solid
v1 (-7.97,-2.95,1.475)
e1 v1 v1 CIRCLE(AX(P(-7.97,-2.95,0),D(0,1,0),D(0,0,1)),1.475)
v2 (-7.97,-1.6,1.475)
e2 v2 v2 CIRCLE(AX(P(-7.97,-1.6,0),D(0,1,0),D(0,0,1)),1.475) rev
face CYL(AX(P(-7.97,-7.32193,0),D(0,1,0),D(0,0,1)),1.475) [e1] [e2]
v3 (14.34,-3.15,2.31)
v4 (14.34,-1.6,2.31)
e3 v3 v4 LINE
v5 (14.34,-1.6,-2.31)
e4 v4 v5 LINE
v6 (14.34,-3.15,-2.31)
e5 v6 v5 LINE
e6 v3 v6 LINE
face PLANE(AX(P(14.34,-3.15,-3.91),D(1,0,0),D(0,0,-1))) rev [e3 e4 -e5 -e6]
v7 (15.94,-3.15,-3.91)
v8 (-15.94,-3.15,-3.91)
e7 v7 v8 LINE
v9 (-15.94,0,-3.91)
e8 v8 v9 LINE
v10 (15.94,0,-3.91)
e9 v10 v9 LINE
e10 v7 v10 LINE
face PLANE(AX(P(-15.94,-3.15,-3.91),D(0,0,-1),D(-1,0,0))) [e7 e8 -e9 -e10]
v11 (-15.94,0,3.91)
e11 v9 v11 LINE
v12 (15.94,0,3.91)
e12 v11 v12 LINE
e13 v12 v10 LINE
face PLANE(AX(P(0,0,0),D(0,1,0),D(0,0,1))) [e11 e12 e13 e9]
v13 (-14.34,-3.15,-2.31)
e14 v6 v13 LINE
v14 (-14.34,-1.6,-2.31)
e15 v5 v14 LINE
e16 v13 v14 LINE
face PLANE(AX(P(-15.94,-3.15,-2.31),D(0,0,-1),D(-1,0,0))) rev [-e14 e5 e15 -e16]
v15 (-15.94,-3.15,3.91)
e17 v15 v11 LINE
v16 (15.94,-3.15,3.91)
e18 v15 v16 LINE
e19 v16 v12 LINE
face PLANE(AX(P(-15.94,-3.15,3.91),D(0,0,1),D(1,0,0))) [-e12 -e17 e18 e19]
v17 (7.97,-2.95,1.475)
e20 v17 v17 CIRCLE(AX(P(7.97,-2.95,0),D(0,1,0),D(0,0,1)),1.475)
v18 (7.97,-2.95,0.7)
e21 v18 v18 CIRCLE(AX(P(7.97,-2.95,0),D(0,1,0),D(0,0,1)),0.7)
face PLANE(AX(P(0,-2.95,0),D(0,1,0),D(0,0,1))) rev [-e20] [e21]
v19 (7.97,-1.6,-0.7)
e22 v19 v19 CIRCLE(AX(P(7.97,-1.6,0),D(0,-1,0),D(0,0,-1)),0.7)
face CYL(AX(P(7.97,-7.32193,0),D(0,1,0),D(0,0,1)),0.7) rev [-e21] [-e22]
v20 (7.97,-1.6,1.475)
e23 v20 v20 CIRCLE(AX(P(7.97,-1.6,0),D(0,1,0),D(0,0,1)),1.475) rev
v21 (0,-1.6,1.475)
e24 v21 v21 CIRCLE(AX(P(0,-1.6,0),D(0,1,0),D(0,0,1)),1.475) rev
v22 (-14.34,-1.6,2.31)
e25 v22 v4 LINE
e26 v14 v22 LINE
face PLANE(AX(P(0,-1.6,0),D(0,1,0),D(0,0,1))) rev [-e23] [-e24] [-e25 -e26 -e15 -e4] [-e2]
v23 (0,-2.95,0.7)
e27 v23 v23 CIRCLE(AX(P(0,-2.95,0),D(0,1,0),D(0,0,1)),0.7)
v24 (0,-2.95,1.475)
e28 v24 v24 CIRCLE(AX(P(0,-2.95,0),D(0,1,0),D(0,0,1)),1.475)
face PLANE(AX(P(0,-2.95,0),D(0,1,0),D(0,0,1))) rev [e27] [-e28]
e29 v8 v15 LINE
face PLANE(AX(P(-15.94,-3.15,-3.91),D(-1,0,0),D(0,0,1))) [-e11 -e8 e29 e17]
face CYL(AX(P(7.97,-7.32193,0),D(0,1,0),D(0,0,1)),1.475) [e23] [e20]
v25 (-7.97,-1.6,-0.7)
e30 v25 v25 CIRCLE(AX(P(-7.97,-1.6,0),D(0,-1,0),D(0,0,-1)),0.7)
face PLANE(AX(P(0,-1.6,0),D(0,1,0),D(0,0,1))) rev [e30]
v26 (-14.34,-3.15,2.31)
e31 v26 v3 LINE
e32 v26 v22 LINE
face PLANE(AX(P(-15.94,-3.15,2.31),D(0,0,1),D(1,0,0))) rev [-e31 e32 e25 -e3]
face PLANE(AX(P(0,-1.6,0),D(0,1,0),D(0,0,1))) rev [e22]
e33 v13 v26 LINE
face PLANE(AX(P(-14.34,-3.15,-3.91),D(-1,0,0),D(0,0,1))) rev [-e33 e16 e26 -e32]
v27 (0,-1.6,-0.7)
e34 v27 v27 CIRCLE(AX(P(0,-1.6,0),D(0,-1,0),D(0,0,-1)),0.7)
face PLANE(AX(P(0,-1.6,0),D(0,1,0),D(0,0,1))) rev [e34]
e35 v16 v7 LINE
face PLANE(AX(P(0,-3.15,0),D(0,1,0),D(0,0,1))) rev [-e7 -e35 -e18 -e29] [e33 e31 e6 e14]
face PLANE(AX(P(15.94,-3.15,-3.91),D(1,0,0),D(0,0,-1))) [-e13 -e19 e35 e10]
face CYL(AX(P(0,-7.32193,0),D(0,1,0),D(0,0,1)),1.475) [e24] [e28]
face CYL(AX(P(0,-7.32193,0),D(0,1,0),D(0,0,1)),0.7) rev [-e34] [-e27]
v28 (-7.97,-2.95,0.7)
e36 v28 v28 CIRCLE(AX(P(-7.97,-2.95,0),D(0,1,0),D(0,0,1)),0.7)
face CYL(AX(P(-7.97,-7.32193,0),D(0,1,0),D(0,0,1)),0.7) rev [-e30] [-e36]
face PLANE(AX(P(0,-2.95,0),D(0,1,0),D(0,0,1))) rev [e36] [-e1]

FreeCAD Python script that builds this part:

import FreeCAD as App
import Part
import Sketcher
from FreeCAD import Vector


def faces_at(feature, points):
    """Names of the faces that lie closest to the given points."""
    faces = feature.Shape.Faces
    near = lambda p: min(range(len(faces)), key=lambda i: faces[i].distToShape(Part.Vertex(*p))[0])
    return sorted({f"Face{near(p) + 1}" for p in points})


def add_polygon(sketch, points):
    """Adds a closed chain of lines whose ends are joined by coincident constraints."""
    first, n = sketch.GeometryCount, len(points)
    for a, b in zip(points, points[1:] + points[:1]):
        sketch.addGeometry(Part.LineSegment(App.Vector(*a, 0), App.Vector(*b, 0)), False)
    for i in range(n):
        sketch.addConstraint(Sketcher.Constraint("Coincident", first + i, 2, first + (i + 1) % n, 1))

doc = App.newDocument("Part")
params = doc.addObject("Spreadsheet::Sheet", "Params")
for row, (alias, value) in enumerate([
    ("sketch1_width", "31.88 mm"),
    ("sketch1_height", "7.82 mm"),
    ("pad1_length", "3.15 mm"),
    ("thickness_wall", "1.6 mm"),
    ("sketch2_diameter", "1.4 mm"),
    ("sketch2_diameter2", "2.95 mm"),
    ("pad2_length", "1.35 mm"),
], start=1):
    params.set(f"A{row}", alias)
    params.set(f"B{row}", "=" + value)
    params.setAlias(f"B{row}", alias)

body = doc.addObject("PartDesign::Body", "Body")

# Sketch on XZ plane
sketch1 = body.newObject("Sketcher::SketchObject", "Sketch")
sketch1.AttachmentSupport = (doc.getObject("XZ_Plane"), [""])
sketch1.MapMode = "FlatFace"
add_polygon(sketch1, [(-15.94, -3.91), (-15.94, 3.91), (15.94, 3.91), (15.94, -3.91)])  # lines 0-3
sketch1.addConstraint([
    Sketcher.Constraint("Vertical", 0),
    Sketcher.Constraint("Horizontal", 1),
    Sketcher.Constraint("Vertical", 2),
    Sketcher.Constraint("Horizontal", 3),
    Sketcher.Constraint("Symmetric", 0, 2, 2, 2, -1, 1),
    Sketcher.Constraint("DistanceX", 1, 1, 1, 2, 31.88),
    Sketcher.Constraint("DistanceY", 0, 1, 0, 2, 7.82),
])
sketch1.setExpression("Constraints[9]", "Params.sketch1_width")
sketch1.setExpression("Constraints[10]", "Params.sketch1_height")
pad1 = body.newObject("PartDesign::Pad", "Pad")
pad1.Profile = sketch1
pad1.setExpression("Length", "Params.pad1_length")
doc.recompute()

thickness = body.newObject("PartDesign::Thickness", "Thickness")
thickness.Base = (pad1, faces_at(pad1, [(0, -3.15, 0)]))
thickness.setExpression("Value", "Params.thickness_wall")
thickness.Reversed = True
thickness.Join = "Intersection"

# Sketch on XZ plane
sketch2 = body.newObject("Sketcher::SketchObject", "Sketch001")
sketch2.AttachmentSupport = (doc.getObject("XZ_Plane"), [""])
sketch2.MapMode = "FlatFace"
sketch2.AttachmentOffset = App.Placement(Vector(0, 0, 1.6), App.Rotation())
sketch2.addGeometry([
    Part.Circle(Vector(-7.97, 0, 0), Vector(0, 0, 1), 1.475),  # 0
    Part.Circle(Vector(-7.97, 0, 0), Vector(0, 0, 1), 0.7),  # 1
    Part.Circle(Vector(0, 0, 0), Vector(0, 0, 1), 1.475),  # 2
    Part.Circle(Vector(0, 0, 0), Vector(0, 0, 1), 0.7),  # 3
    Part.Circle(Vector(7.97, 0, 0), Vector(0, 0, 1), 1.475),  # 4
    Part.Circle(Vector(7.97, 0, 0), Vector(0, 0, 1), 0.7),  # 5
], False)
sketch2.addConstraint([
    Sketcher.Constraint("Coincident", 2, 3, -1, 1),
    Sketcher.Constraint("Coincident", 3, 3, -1, 1),
    Sketcher.Constraint("Coincident", 1, 3, 0, 3),
    Sketcher.Constraint("Coincident", 5, 3, 4, 3),
    Sketcher.Constraint("Equal", 0, 2),
    Sketcher.Constraint("Equal", 1, 3),
    Sketcher.Constraint("Equal", 2, 4),
    Sketcher.Constraint("Equal", 3, 5),
    Sketcher.Constraint("Symmetric", 0, 3, 4, 3, -1, 1),
    Sketcher.Constraint("PointOnObject", 0, 3, -1),
    Sketcher.Constraint("Diameter", 1, 1.4),
    Sketcher.Constraint("Diameter", 0, 2.95),
    Sketcher.Constraint("DistanceX", 0, 3, -1, 1, 7.97),
])
sketch2.setExpression("Constraints[10]", "Params.sketch2_diameter")
sketch2.setExpression("Constraints[11]", "Params.sketch2_diameter2")
pad2 = body.newObject("PartDesign::Pad", "Pad001")
pad2.Profile = sketch2
pad2.setExpression("Length", "Params.pad2_length")

doc.recompute()
